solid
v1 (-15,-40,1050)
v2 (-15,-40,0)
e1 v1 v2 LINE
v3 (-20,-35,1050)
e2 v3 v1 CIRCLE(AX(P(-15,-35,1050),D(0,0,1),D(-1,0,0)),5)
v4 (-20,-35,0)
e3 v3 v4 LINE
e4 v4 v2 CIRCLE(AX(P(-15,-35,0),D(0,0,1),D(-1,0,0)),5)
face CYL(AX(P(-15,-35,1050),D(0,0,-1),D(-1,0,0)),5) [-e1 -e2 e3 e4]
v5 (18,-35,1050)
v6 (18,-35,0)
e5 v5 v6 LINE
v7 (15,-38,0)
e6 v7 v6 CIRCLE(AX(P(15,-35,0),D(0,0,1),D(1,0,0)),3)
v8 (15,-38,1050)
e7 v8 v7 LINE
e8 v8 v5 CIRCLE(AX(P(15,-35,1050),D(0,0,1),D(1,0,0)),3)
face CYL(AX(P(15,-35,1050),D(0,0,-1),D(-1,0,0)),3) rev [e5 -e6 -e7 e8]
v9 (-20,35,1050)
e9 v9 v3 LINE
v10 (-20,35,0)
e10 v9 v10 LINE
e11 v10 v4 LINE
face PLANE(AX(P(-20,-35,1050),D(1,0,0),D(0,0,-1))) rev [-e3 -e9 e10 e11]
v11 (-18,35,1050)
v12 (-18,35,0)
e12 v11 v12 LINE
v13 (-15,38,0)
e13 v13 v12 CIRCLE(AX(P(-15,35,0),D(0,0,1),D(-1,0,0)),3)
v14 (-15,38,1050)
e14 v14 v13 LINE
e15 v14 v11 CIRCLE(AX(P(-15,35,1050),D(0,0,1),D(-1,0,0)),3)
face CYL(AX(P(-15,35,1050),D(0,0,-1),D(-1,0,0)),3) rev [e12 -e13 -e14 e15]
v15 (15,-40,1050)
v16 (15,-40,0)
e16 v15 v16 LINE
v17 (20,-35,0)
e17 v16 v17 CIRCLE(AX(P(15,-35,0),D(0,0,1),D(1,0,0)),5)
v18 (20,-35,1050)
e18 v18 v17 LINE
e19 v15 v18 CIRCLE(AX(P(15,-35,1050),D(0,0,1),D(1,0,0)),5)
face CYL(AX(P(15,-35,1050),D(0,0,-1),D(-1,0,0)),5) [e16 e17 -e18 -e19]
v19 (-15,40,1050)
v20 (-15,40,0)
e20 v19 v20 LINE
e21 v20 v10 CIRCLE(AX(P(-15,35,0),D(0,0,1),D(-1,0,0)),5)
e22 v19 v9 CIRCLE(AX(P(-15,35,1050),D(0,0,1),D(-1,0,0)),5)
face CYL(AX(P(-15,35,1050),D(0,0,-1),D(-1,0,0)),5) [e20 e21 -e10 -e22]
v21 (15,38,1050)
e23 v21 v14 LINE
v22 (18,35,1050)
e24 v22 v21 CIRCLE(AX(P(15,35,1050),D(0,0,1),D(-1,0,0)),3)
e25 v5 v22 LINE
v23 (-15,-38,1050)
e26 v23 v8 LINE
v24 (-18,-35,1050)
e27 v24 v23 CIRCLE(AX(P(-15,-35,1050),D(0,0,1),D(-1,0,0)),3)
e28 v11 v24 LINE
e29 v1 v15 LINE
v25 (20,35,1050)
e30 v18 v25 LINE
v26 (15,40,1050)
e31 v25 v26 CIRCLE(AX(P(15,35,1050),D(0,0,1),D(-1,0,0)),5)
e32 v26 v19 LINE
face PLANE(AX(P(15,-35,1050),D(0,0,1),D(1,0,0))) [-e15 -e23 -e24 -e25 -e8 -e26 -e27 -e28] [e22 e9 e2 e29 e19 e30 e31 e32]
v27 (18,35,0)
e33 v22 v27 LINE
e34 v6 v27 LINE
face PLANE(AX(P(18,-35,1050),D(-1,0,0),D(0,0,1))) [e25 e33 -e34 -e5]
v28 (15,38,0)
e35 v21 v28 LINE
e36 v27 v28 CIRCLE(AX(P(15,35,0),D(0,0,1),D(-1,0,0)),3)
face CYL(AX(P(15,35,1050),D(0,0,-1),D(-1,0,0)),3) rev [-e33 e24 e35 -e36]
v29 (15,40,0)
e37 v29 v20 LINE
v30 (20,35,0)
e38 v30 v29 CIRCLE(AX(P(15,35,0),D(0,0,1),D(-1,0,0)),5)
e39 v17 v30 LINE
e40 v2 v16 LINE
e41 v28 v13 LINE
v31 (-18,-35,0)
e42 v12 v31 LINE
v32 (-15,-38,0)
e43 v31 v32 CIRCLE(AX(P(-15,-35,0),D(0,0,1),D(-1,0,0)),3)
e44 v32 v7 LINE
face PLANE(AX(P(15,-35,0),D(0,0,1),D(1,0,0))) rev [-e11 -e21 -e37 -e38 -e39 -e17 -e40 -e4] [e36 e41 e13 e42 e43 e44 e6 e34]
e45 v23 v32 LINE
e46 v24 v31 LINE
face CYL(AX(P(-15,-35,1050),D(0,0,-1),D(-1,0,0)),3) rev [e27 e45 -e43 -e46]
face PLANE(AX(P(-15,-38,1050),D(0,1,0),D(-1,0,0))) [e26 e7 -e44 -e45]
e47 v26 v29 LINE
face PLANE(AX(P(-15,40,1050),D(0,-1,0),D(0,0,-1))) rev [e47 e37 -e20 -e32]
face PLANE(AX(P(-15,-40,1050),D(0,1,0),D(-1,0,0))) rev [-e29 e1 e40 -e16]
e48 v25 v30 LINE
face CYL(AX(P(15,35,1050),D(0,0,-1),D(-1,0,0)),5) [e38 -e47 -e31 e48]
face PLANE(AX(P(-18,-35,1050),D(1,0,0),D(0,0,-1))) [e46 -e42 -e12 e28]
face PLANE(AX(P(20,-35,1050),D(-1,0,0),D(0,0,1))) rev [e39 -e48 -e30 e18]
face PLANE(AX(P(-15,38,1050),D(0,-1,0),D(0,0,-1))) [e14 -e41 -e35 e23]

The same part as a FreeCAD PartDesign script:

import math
import FreeCAD as App
import Part
import Sketcher

doc = App.newDocument("Part")
body = doc.addObject("PartDesign::Body", "Body")

# Sketch on XY plane
sketch1 = body.newObject("Sketcher::SketchObject", "Sketch")
sketch1.AttachmentSupport = (doc.getObject("XY_Plane"), [""])
sketch1.MapMode = "FlatFace"
sketch1.addGeometry([
    Part.LineSegment(App.Vector(-15, -40, 0), App.Vector(15, -40, 0)),  # 0
    Part.ArcOfCircle(Part.Circle(App.Vector(15, -35, 0), App.Vector(0, 0, 1), 5), math.radians(-90), math.radians(0)),  # 1
    Part.LineSegment(App.Vector(20, -35, 0), App.Vector(20, 35, 0)),  # 2
    Part.ArcOfCircle(Part.Circle(App.Vector(15, 35, 0), App.Vector(0, 0, 1), 5), math.radians(0), math.radians(90)),  # 3
    Part.LineSegment(App.Vector(15, 40, 0), App.Vector(-15, 40, 0)),  # 4
    Part.ArcOfCircle(Part.Circle(App.Vector(-15, 35, 0), App.Vector(0, 0, 1), 5), math.radians(90), math.radians(180)),  # 5
    Part.LineSegment(App.Vector(-20, 35, 0), App.Vector(-20, -35, 0)),  # 6
    Part.ArcOfCircle(Part.Circle(App.Vector(-15, -35, 0), App.Vector(0, 0, 1), 5), math.radians(180), math.radians(270)),  # 7
    Part.ArcOfCircle(Part.Circle(App.Vector(-15, -35, 0), App.Vector(0, 0, 1), 3), math.radians(180), math.radians(270)),  # 8
    Part.LineSegment(App.Vector(-18, -35, 0), App.Vector(-18, 35, 0)),  # 9
    Part.ArcOfCircle(Part.Circle(App.Vector(-15, 35, 0), App.Vector(0, 0, 1), 3), math.radians(90), math.radians(180)),  # 10
    Part.LineSegment(App.Vector(-15, 38, 0), App.Vector(15, 38, 0)),  # 11
    Part.ArcOfCircle(Part.Circle(App.Vector(15, 35, 0), App.Vector(0, 0, 1), 3), math.radians(0), math.radians(90)),  # 12
    Part.LineSegment(App.Vector(18, 35, 0), App.Vector(18, -35, 0)),  # 13
    Part.ArcOfCircle(Part.Circle(App.Vector(15, -35, 0), App.Vector(0, 0, 1), 3), math.radians(-90), math.radians(0)),  # 14
    Part.LineSegment(App.Vector(15, -38, 0), App.Vector(-15, -38, 0)),  # 15
], False)
sketch1.addConstraint([
    Sketcher.Constraint("Tangent", 0, 2, 1, 1),
    Sketcher.Constraint("Tangent", 1, 2, 2, 1),
    Sketcher.Constraint("Tangent", 2, 2, 3, 1),
    Sketcher.Constraint("Tangent", 3, 2, 4, 1),
    Sketcher.Constraint("Tangent", 4, 2, 5, 1),
    Sketcher.Constraint("Tangent", 5, 2, 6, 1),
    Sketcher.Constraint("Tangent", 6, 2, 7, 1),
    Sketcher.Constraint("Tangent", 7, 2, 0, 1),
    Sketcher.Constraint("Tangent", 8, 1, 9, 1),
    Sketcher.Constraint("Tangent", 9, 2, 10, 2),
    Sketcher.Constraint("Tangent", 10, 1, 11, 1),
    Sketcher.Constraint("Tangent", 11, 2, 12, 2),
    Sketcher.Constraint("Tangent", 12, 1, 13, 1),
    Sketcher.Constraint("Tangent", 13, 2, 14, 2),
    Sketcher.Constraint("Tangent", 14, 1, 15, 1),
    Sketcher.Constraint("Tangent", 15, 2, 8, 2),
    Sketcher.Constraint("Horizontal", 0),
    Sketcher.Constraint("Vertical", 2),
    Sketcher.Constraint("Horizontal", 4),
    Sketcher.Constraint("Vertical", 6),
    Sketcher.Constraint("Vertical", 9),
    Sketcher.Constraint("Horizontal", 11),
    Sketcher.Constraint("Vertical", 13),
    Sketcher.Constraint("Horizontal", 15),
    Sketcher.Constraint("Coincident", 8, 3, 7, 3),
    Sketcher.Constraint("Coincident", 10, 3, 5, 3),
    Sketcher.Constraint("Coincident", 12, 3, 3, 3),
    Sketcher.Constraint("Equal", 1, 3),
    Sketcher.Constraint("Equal", 3, 5),
    Sketcher.Constraint("Equal", 5, 7),
    Sketcher.Constraint("Equal", 12, 14),
    Sketcher.Constraint("Symmetric", 1, 3, 5, 3, -1, 1),
    Sketcher.Constraint("Radius", 1, 5.0),
    Sketcher.Constraint("Radius", 8, 3.0),
    Sketcher.Constraint("DistanceX", 0, 1, 0, 2, 30.0),
    Sketcher.Constraint("DistanceY", 2, 1, 2, 2, 70.0),
])
pad1 = body.newObject("PartDesign::Pad", "Pad")
pad1.Profile = sketch1
pad1.Length = 1050

doc.recompute()
